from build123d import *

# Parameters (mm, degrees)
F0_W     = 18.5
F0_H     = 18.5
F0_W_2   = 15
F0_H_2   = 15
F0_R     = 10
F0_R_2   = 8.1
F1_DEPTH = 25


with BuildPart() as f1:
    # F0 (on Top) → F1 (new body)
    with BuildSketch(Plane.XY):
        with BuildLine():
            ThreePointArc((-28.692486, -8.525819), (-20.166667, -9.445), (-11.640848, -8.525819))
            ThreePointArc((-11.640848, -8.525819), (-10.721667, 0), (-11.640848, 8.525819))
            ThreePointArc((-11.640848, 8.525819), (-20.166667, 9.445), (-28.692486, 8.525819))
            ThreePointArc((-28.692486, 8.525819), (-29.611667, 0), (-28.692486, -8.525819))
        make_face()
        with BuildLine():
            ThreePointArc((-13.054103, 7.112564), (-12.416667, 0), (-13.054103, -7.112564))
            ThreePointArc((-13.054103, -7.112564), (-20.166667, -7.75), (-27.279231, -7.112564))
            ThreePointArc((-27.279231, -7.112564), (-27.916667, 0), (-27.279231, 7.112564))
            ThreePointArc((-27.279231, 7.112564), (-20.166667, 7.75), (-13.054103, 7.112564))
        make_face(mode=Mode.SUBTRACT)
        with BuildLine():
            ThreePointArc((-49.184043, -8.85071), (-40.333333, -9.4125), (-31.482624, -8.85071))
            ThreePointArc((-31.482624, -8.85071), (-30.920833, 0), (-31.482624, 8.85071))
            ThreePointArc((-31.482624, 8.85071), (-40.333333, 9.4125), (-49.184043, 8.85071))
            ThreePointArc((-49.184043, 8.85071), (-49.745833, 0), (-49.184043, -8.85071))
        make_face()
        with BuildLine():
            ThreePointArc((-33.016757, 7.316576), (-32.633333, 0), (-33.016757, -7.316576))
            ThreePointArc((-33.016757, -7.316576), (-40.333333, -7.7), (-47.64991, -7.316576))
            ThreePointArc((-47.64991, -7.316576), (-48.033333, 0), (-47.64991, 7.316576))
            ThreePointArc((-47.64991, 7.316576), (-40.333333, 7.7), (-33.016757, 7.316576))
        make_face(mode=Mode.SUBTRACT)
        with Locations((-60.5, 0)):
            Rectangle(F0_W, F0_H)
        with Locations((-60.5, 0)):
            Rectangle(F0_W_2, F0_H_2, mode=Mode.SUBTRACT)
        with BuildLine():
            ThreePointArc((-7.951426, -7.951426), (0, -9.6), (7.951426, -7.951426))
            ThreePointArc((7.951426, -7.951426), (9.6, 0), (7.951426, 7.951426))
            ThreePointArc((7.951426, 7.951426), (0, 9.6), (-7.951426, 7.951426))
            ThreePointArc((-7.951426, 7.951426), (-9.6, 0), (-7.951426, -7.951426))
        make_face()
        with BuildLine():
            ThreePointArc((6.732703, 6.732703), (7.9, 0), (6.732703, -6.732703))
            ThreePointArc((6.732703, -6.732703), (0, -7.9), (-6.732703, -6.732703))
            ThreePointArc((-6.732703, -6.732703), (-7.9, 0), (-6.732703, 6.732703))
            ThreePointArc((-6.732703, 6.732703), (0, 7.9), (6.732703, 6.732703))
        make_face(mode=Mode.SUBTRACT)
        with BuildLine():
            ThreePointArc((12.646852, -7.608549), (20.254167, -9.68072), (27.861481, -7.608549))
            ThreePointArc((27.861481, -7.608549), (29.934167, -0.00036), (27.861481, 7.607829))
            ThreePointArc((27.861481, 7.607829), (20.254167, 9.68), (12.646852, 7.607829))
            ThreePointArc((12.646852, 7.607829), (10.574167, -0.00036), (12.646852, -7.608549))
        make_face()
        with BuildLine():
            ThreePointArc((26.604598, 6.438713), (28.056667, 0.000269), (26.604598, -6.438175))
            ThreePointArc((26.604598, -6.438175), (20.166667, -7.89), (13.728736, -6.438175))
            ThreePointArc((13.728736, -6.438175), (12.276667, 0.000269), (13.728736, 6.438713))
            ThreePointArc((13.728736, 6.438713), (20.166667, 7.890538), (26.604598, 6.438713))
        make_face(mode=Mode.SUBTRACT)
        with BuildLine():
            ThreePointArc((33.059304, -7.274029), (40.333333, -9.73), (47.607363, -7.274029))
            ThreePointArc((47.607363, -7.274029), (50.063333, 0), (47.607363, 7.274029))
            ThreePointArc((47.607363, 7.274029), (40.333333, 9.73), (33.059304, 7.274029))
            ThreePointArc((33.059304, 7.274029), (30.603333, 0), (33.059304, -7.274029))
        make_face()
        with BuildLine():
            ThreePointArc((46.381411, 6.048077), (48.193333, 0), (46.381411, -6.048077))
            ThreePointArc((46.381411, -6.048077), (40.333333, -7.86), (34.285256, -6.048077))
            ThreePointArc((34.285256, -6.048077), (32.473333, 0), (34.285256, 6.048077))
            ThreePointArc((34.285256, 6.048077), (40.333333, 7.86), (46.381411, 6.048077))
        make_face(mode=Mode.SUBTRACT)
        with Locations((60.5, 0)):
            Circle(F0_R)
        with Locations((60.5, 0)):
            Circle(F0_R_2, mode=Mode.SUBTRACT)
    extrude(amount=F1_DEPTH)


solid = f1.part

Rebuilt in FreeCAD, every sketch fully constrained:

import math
import FreeCAD as App
import Part
import Sketcher
from FreeCAD import Vector

doc = App.newDocument("Part")
body = doc.addObject("PartDesign::Body", "Body")
body.AllowCompound = True

# Sketch on XY plane
sketch1 = body.newObject("Sketcher::SketchObject", "Sketch")
sketch1.AttachmentSupport = (doc.getObject("XY_Plane"), [""])
sketch1.MapMode = "FlatFace"
sketch1.addGeometry(Part.ArcOfCircle(Part.Circle(Vector(-20.166667, 30.555002, 0), Vector(0, 0, 1), 40.000002), math.radians(-102.306749), math.radians(-77.693251)), False)
sketch1.addGeometry(Part.ArcOfCircle(Part.Circle(Vector(-50.721669, 0, 0), Vector(0, 0, 1), 40.000002), math.radians(-12.306749), math.radians(12.306749)), False)
sketch1.addGeometry(Part.ArcOfCircle(Part.Circle(Vector(-20.166667, -30.555002, 0), Vector(0, 0, 1), 40.000002), math.radians(77.693251), math.radians(102.306749)), False)
sketch1.addGeometry(Part.ArcOfCircle(Part.Circle(Vector(10.388335, 0, 0), Vector(0, 0, 1), 40.000002), math.radians(167.693251), math.radians(192.306749)), False)
sketch1.addGeometry(Part.ArcOfCircle(Part.Circle(Vector(-20.166667, -32.250009, 0), Vector(0, 0, 1), 40.000009), math.radians(79.757539), math.radians(100.242461)), False)
sketch1.addGeometry(Part.ArcOfCircle(Part.Circle(Vector(-52.416676, 0, 0), Vector(0, 0, 1), 40.000009), math.radians(-10.242461), math.radians(10.242461)), False)
sketch1.addGeometry(Part.ArcOfCircle(Part.Circle(Vector(-20.166667, 32.250009, 0), Vector(0, 0, 1), 40.000009), math.radians(-100.242461), math.radians(-79.757539)), False)
sketch1.addGeometry(Part.ArcOfCircle(Part.Circle(Vector(12.083342, 0, 0), Vector(0, 0, 1), 40.000009), math.radians(169.757539), math.radians(190.242461)), False)
sketch1.addGeometry(Part.ArcOfCircle(Part.Circle(Vector(-40.333334, 60.587559, 0), Vector(0, 0, 1), 70.000059), math.radians(-97.263841), math.radians(-82.736159)), False)
sketch1.addGeometry(Part.ArcOfCircle(Part.Circle(Vector(-100.920777, 0, 0), Vector(0, 0, 1), 69.999944), math.radians(-7.263853), math.radians(7.263853)), False)
sketch1.addGeometry(Part.ArcOfCircle(Part.Circle(Vector(-40.333334, -60.587559, 0), Vector(0, 0, 1), 70.000059), math.radians(82.736159), math.radians(97.263841)), False)
sketch1.addGeometry(Part.ArcOfCircle(Part.Circle(Vector(20.254234, 0, 0), Vector(0, 0, 1), 70.000067), math.radians(172.73616), math.radians(187.26384)), False)
sketch1.addGeometry(Part.ArcOfCircle(Part.Circle(Vector(-40.333334, -62.299929, 0), Vector(0, 0, 1), 69.999929), math.radians(84.000336), math.radians(95.999664)), False)
sketch1.addGeometry(Part.ArcOfCircle(Part.Circle(Vector(-102.633253, 0, 0), Vector(0, 0, 1), 69.99992), math.radians(-5.999664), math.radians(5.999664)), False)
sketch1.addGeometry(Part.ArcOfCircle(Part.Circle(Vector(-40.333334, 62.299929, 0), Vector(0, 0, 1), 69.999929), math.radians(-95.999664), math.radians(-84.000336)), False)
sketch1.addGeometry(Part.ArcOfCircle(Part.Circle(Vector(21.966768, 0, 0), Vector(0, 0, 1), 70.000101), math.radians(174.000351), math.radians(185.999649)), False)
sketch1.addGeometry(Part.LineSegment(Vector(-69.75, 9.25, 0), Vector(-69.75, -9.25, 0)), False)
sketch1.addGeometry(Part.LineSegment(Vector(-69.75, -9.25, 0), Vector(-51.25, -9.25, 0)), False)
sketch1.addGeometry(Part.LineSegment(Vector(-51.25, -9.25, 0), Vector(-51.25, 9.25, 0)), False)
sketch1.addGeometry(Part.LineSegment(Vector(-51.25, 9.25, 0), Vector(-69.75, 9.25, 0)), False)
sketch1.addGeometry(Part.LineSegment(Vector(-53, -7.5, 0), Vector(-68, -7.5, 0)), False)
sketch1.addGeometry(Part.LineSegment(Vector(-68, -7.5, 0), Vector(-68, 7.5, 0)), False)
sketch1.addGeometry(Part.LineSegment(Vector(-68, 7.5, 0), Vector(-53, 7.5, 0)), False)
sketch1.addGeometry(Part.LineSegment(Vector(-53, 7.5, 0), Vector(-53, -7.5, 0)), False)
sketch1.addGeometry(Part.ArcOfCircle(Part.Circle(Vector(0, 10.400004, 0), Vector(0, 0, 1), 20.000004), math.radians(-113.426432), math.radians(-66.573568)), False)
sketch1.addGeometry(Part.ArcOfCircle(Part.Circle(Vector(-10.400004, 0, 0), Vector(0, 0, 1), 20.000004), math.radians(-23.426432), math.radians(23.426432)), False)
sketch1.addGeometry(Part.ArcOfCircle(Part.Circle(Vector(0, -10.400004, 0), Vector(0, 0, 1), 20.000004), math.radians(66.573568), math.radians(113.426432)), False)
sketch1.addGeometry(Part.ArcOfCircle(Part.Circle(Vector(10.400004, 0, 0), Vector(0, 0, 1), 20.000004), math.radians(156.573568), math.radians(203.426432)), False)
sketch1.addGeometry(Part.ArcOfCircle(Part.Circle(Vector(0, -12.099997, 0), Vector(0, 0, 1), 19.999997), math.radians(70.327995), math.radians(109.672005)), False)
sketch1.addGeometry(Part.ArcOfCircle(Part.Circle(Vector(-12.099997, 0, 0), Vector(0, 0, 1), 19.999997), math.radians(-19.672005), math.radians(19.672005)), False)
sketch1.addGeometry(Part.ArcOfCircle(Part.Circle(Vector(0, 12.099997, 0), Vector(0, 0, 1), 19.999997), math.radians(-109.672005), math.radians(-70.327995)), False)
sketch1.addGeometry(Part.ArcOfCircle(Part.Circle(Vector(12.099997, 0, 0), Vector(0, 0, 1), 19.999997), math.radians(160.327995), math.radians(199.672005)), False)
sketch1.addGeometry(Part.ArcOfCircle(Part.Circle(Vector(20.254167, 5.319279, 0), Vector(0, 0, 1), 14.999999), math.radians(-120.474466), math.radians(-59.525534)), False)
sketch1.addGeometry(Part.ArcOfCircle(Part.Circle(Vector(14.93417, -0.00036, 0), Vector(0, 0, 1), 14.999997), math.radians(-30.478347), math.radians(30.478347)), False)
sketch1.addGeometry(Part.ArcOfCircle(Part.Circle(Vector(20.254167, -5.319999, 0), Vector(0, 0, 1), 14.999999), math.radians(59.525534), math.radians(120.474466)), False)
sketch1.addGeometry(Part.ArcOfCircle(Part.Circle(Vector(25.57417, -0.00036, 0), Vector(0, 0, 1), 15.000003), math.radians(149.521667), math.radians(210.478333)), False)
sketch1.addGeometry(Part.ArcOfCircle(Part.Circle(Vector(20.166667, -7.109462, 0), Vector(0, 0, 1), 15), math.radians(64.583492), math.radians(115.416508)), False)
sketch1.addGeometry(Part.ArcOfCircle(Part.Circle(Vector(13.056669, 0.000269, 0), Vector(0, 0, 1), 14.999998), math.radians(-25.418681), math.radians(25.418681)), False)
sketch1.addGeometry(Part.ArcOfCircle(Part.Circle(Vector(20.166667, 7.11, 0), Vector(0, 0, 1), 15), math.radians(-115.416508), math.radians(-64.583492)), False)
sketch1.addGeometry(Part.ArcOfCircle(Part.Circle(Vector(27.276665, 0.000269, 0), Vector(0, 0, 1), 14.999998), math.radians(154.581319), math.radians(205.418681)), False)
sketch1.addGeometry(Part.ArcOfCircle(Part.Circle(Vector(40.333334, 2.269999, 0), Vector(0, 0, 1), 11.999999), math.radians(-127.313022), math.radians(-52.686978)), False)
sketch1.addGeometry(Part.ArcOfCircle(Part.Circle(Vector(38.063332, 0, 0), Vector(0, 0, 1), 12.000001), math.radians(-37.31301), math.radians(37.31301)), False)
sketch1.addGeometry(Part.ArcOfCircle(Part.Circle(Vector(40.333334, -2.269999, 0), Vector(0, 0, 1), 11.999999), math.radians(52.686978), math.radians(127.313022)), False)
sketch1.addGeometry(Part.ArcOfCircle(Part.Circle(Vector(42.60333, 0, 0), Vector(0, 0, 1), 11.999997), math.radians(142.686975), math.radians(217.313025)), False)
sketch1.addGeometry(Part.ArcOfCircle(Part.Circle(Vector(40.333334, -3.14, 0), Vector(0, 0, 1), 11), math.radians(56.644977), math.radians(123.355023)), False)
sketch1.addGeometry(Part.ArcOfCircle(Part.Circle(Vector(37.193329, 0, 0), Vector(0, 0, 1), 11.000004), math.radians(-33.355008), math.radians(33.355008)), False)
sketch1.addGeometry(Part.ArcOfCircle(Part.Circle(Vector(40.333334, 3.14, 0), Vector(0, 0, 1), 11), math.radians(-123.355023), math.radians(-56.644977)), False)
sketch1.addGeometry(Part.ArcOfCircle(Part.Circle(Vector(43.473331, 0, 0), Vector(0, 0, 1), 10.999998), math.radians(146.644974), math.radians(213.355026)), False)
sketch1.addGeometry(Part.Circle(Vector(60.5, 0, 0), Vector(0, 0, 1), 10), False)
sketch1.addGeometry(Part.Circle(Vector(60.5, 0, 0), Vector(0, 0, 1), 8.1), False)
sketch1.addConstraint(Sketcher.Constraint("Coincident", 0, 2, 1, 1))
sketch1.addConstraint(Sketcher.Constraint("Coincident", 1, 2, 2, 1))
sketch1.addConstraint(Sketcher.Constraint("Coincident", 2, 2, 3, 1))
sketch1.addConstraint(Sketcher.Constraint("Coincident", 3, 2, 0, 1))
sketch1.addConstraint(Sketcher.Constraint("Coincident", 4, 1, 5, 2))
sketch1.addConstraint(Sketcher.Constraint("Coincident", 5, 1, 6, 2))
sketch1.addConstraint(Sketcher.Constraint("Coincident", 6, 1, 7, 2))
sketch1.addConstraint(Sketcher.Constraint("Coincident", 7, 1, 4, 2))
sketch1.addConstraint(Sketcher.Constraint("Coincident", 8, 2, 9, 1))
sketch1.addConstraint(Sketcher.Constraint("Coincident", 9, 2, 10, 1))
sketch1.addConstraint(Sketcher.Constraint("Coincident", 10, 2, 11, 1))
sketch1.addConstraint(Sketcher.Constraint("Coincident", 11, 2, 8, 1))
sketch1.addConstraint(Sketcher.Constraint("Coincident", 12, 1, 13, 2))
sketch1.addConstraint(Sketcher.Constraint("Coincident", 13, 1, 14, 2))
sketch1.addConstraint(Sketcher.Constraint("Coincident", 14, 1, 15, 2))
sketch1.addConstraint(Sketcher.Constraint("Coincident", 15, 1, 12, 2))
sketch1.addConstraint(Sketcher.Constraint("Coincident", 16, 2, 17, 1))
sketch1.addConstraint(Sketcher.Constraint("Coincident", 17, 2, 18, 1))
sketch1.addConstraint(Sketcher.Constraint("Coincident", 18, 2, 19, 1))
sketch1.addConstraint(Sketcher.Constraint("Coincident", 19, 2, 16, 1))
sketch1.addConstraint(Sketcher.Constraint("Coincident", 20, 2, 21, 1))
sketch1.addConstraint(Sketcher.Constraint("Coincident", 21, 2, 22, 1))
sketch1.addConstraint(Sketcher.Constraint("Coincident", 22, 2, 23, 1))
sketch1.addConstraint(Sketcher.Constraint("Coincident", 23, 2, 20, 1))
sketch1.addConstraint(Sketcher.Constraint("Coincident", 24, 2, 25, 1))
sketch1.addConstraint(Sketcher.Constraint("Coincident", 25, 2, 26, 1))
sketch1.addConstraint(Sketcher.Constraint("Coincident", 26, 2, 27, 1))
sketch1.addConstraint(Sketcher.Constraint("Coincident", 27, 2, 24, 1))
sketch1.addConstraint(Sketcher.Constraint("Coincident", 28, 1, 29, 2))
sketch1.addConstraint(Sketcher.Constraint("Coincident", 29, 1, 30, 2))
sketch1.addConstraint(Sketcher.Constraint("Coincident", 30, 1, 31, 2))
sketch1.addConstraint(Sketcher.Constraint("Coincident", 31, 1, 28, 2))
sketch1.addConstraint(Sketcher.Constraint("Coincident", 32, 2, 33, 1))
sketch1.addConstraint(Sketcher.Constraint("Coincident", 33, 2, 34, 1))
sketch1.addConstraint(Sketcher.Constraint("Coincident", 34, 2, 35, 1))
sketch1.addConstraint(Sketcher.Constraint("Coincident", 35, 2, 32, 1))
sketch1.addConstraint(Sketcher.Constraint("Coincident", 36, 1, 37, 2))
sketch1.addConstraint(Sketcher.Constraint("Coincident", 37, 1, 38, 2))
sketch1.addConstraint(Sketcher.Constraint("Coincident", 38, 1, 39, 2))
sketch1.addConstraint(Sketcher.Constraint("Coincident", 39, 1, 36, 2))
sketch1.addConstraint(Sketcher.Constraint("Coincident", 40, 2, 41, 1))
sketch1.addConstraint(Sketcher.Constraint("Coincident", 41, 2, 42, 1))
sketch1.addConstraint(Sketcher.Constraint("Coincident", 42, 2, 43, 1))
sketch1.addConstraint(Sketcher.Constraint("Coincident", 43, 2, 40, 1))
sketch1.addConstraint(Sketcher.Constraint("Coincident", 44, 1, 45, 2))
sketch1.addConstraint(Sketcher.Constraint("Coincident", 45, 1, 46, 2))
sketch1.addConstraint(Sketcher.Constraint("Coincident", 46, 1, 47, 2))
sketch1.addConstraint(Sketcher.Constraint("Coincident", 47, 1, 44, 2))
sketch1.addConstraint(Sketcher.Constraint("Vertical", 16))
sketch1.addConstraint(Sketcher.Constraint("Horizontal", 17))
sketch1.addConstraint(Sketcher.Constraint("Vertical", 18))
sketch1.addConstraint(Sketcher.Constraint("Horizontal", 19))
sketch1.addConstraint(Sketcher.Constraint("Horizontal", 20))
sketch1.addConstraint(Sketcher.Constraint("Vertical", 21))
sketch1.addConstraint(Sketcher.Constraint("Horizontal", 22))
sketch1.addConstraint(Sketcher.Constraint("Vertical", 23))
sketch1.addConstraint(Sketcher.Constraint("Coincident", 49, 3, 48, 3))
sketch1.addConstraint(Sketcher.Constraint("Equal", 0, 1))
sketch1.addConstraint(Sketcher.Constraint("Equal", 1, 2))
sketch1.addConstraint(Sketcher.Constraint("Equal", 2, 3))
sketch1.addConstraint(Sketcher.Constraint("Equal", 4, 5))
sketch1.addConstraint(Sketcher.Constraint("Equal", 5, 6))
sketch1.addConstraint(Sketcher.Constraint("Equal", 6, 7))
sketch1.addConstraint(Sketcher.Constraint("Equal", 8, 10))
sketch1.addConstraint(Sketcher.Constraint("Equal", 12, 14))
sketch1.addConstraint(Sketcher.Constraint("Equal", 24, 25))
sketch1.addConstraint(Sketcher.Constraint("Equal", 25, 26))
sketch1.addConstraint(Sketcher.Constraint("Equal", 26, 27))
sketch1.addConstraint(Sketcher.Constraint("Equal", 28, 29))
sketch1.addConstraint(Sketcher.Constraint("Equal", 29, 30))
sketch1.addConstraint(Sketcher.Constraint("Equal", 30, 31))
sketch1.addConstraint(Sketcher.Constraint("Equal", 32, 34))
sketch1.addConstraint(Sketcher.Constraint("Equal", 34, 36))
sketch1.addConstraint(Sketcher.Constraint("Equal", 34, 37))
sketch1.addConstraint(Sketcher.Constraint("Equal", 36, 38))
sketch1.addConstraint(Sketcher.Constraint("Equal", 37, 39))
sketch1.addConstraint(Sketcher.Constraint("Equal", 40, 42))
sketch1.addConstraint(Sketcher.Constraint("Equal", 42, 43))
sketch1.addConstraint(Sketcher.Constraint("Equal", 44, 46))
sketch1.addConstraint(Sketcher.Constraint("Equal", 46, 47))
sketch1.addConstraint(Sketcher.Constraint("Symmetric", 24, 3, 26, 3, -1, 1))
sketch1.addConstraint(Sketcher.Constraint("Symmetric", 25, 3, 27, 3, -1, 1))
sketch1.addConstraint(Sketcher.Constraint("Symmetric", 28, 3, 30, 3, -1, 1))
sketch1.addConstraint(Sketcher.Constraint("Symmetric", 29, 3, 31, 3, -1, 1))
sketch1.addConstraint(Sketcher.Constraint("Symmetric", 25, 2, 26, 2, -2))
sketch1.addConstraint(Sketcher.Constraint("Symmetric", 29, 1, 30, 1, -2))
sketch1.addConstraint(Sketcher.Constraint("Symmetric", 0, 3, 2, 3, -1))
sketch1.addConstraint(Sketcher.Constraint("Symmetric", 4, 3, 6, 3, -1))
sketch1.addConstraint(Sketcher.Constraint("Symmetric", 8, 3, 10, 3, -1))
sketch1.addConstraint(Sketcher.Constraint("Symmetric", 12, 3, 14, 3, -1))
sketch1.addConstraint(Sketcher.Constraint("Symmetric", 40, 3, 42, 3, -1))
sketch1.addConstraint(Sketcher.Constraint("Symmetric", 44, 3, 46, 3, -1))
sketch1.addConstraint(Sketcher.Constraint("PointOnObject", 1, 3, -1))
sketch1.addConstraint(Sketcher.Constraint("PointOnObject", 3, 3, -1))
sketch1.addConstraint(Sketcher.Constraint("PointOnObject", 5, 3, -1))
sketch1.addConstraint(Sketcher.Constraint("PointOnObject", 7, 3, -1))
sketch1.addConstraint(Sketcher.Constraint("PointOnObject", 9, 3, -1))
sketch1.addConstraint(Sketcher.Constraint("PointOnObject", 11, 3, -1))
sketch1.addConstraint(Sketcher.Constraint("PointOnObject", 13, 3, -1))
sketch1.addConstraint(Sketcher.Constraint("PointOnObject", 15, 3, -1))
sketch1.addConstraint(Sketcher.Constraint("PointOnObject", 41, 3, -1))
sketch1.addConstraint(Sketcher.Constraint("PointOnObject", 43, 3, -1))
sketch1.addConstraint(Sketcher.Constraint("PointOnObject", 45, 3, -1))
sketch1.addConstraint(Sketcher.Constraint("PointOnObject", 47, 3, -1))
sketch1.addConstraint(Sketcher.Constraint("PointOnObject", 48, 3, -1))
sketch1.addConstraint(Sketcher.Constraint("Horizontal", 33, 3, 35, 3))
sketch1.addConstraint(Sketcher.Constraint("Horizontal", 37, 3, 39, 3))
sketch1.addConstraint(Sketcher.Constraint("Horizontal", 1, 2, 2, 2))
sketch1.addConstraint(Sketcher.Constraint("Horizontal", 5, 1, 6, 1))
sketch1.addConstraint(Sketcher.Constraint("Horizontal", 9, 2, 10, 2))
sketch1.addConstraint(Sketcher.Constraint("Horizontal", 13, 1, 14, 1))
sketch1.addConstraint(Sketcher.Constraint("Horizontal", 33, 2, 34, 2))
sketch1.addConstraint(Sketcher.Constraint("Horizontal", 32, 2, 35, 2))
sketch1.addConstraint(Sketcher.Constraint("Horizontal", 37, 1, 38, 1))
sketch1.addConstraint(Sketcher.Constraint("Horizontal", 36, 1, 39, 1))
sketch1.addConstraint(Sketcher.Constraint("Horizontal", 41, 2, 42, 2))
sketch1.addConstraint(Sketcher.Constraint("Horizontal", 45, 1, 46, 1))
sketch1.addConstraint(Sketcher.Constraint("Vertical", 2, 3, 4, 3))
sketch1.addConstraint(Sketcher.Constraint("Vertical", 10, 3, 12, 3))
sketch1.addConstraint(Sketcher.Constraint("Vertical", 42, 3, 44, 3))
sketch1.addConstraint(Sketcher.Constraint("Vertical", 32, 2, 33, 2))
sketch1.addConstraint(Sketcher.Constraint("Vertical", 36, 1, 37, 1))
sketch1.addConstraint(Sketcher.Constraint("Equal", 19, 16))
sketch1.addConstraint(Sketcher.Constraint("Equal", 22, 21))
sketch1.addConstraint(Sketcher.Constraint("Diameter", 48, 20.0))
sketch1.addConstraint(Sketcher.Constraint("Radius", 0, 40.000002))
sketch1.addConstraint(Sketcher.Constraint("Radius", 32, 14.999999))
sketch1.addConstraint(Sketcher.Constraint("Radius", 40, 11.999999))
sketch1.addConstraint(Sketcher.Constraint("Radius", 41, 12.000001))
sketch1.addConstraint(Sketcher.Constraint("Radius", 44, 11.0))
sketch1.addConstraint(Sketcher.Constraint("Diameter", 49, 16.2))
sketch1.addConstraint(Sketcher.Constraint("DistanceX", 20, 2, 20, 1, 15.0))
sketch1.addConstraint(Sketcher.Constraint("DistanceX", 17, 1, 17, 2, 18.5))
sketch1.addConstraint(Sketcher.Constraint("DistanceX", 20, 2, -1, 1, 68.0))
sketch1.addConstraint(Sketcher.Constraint("DistanceX", -1, 1, 48, 3, 60.5))
sketch1.addConstraint(Sketcher.Constraint("DistanceY", 20, 2, -1, 1, 7.5))
sketch1.addConstraint(Sketcher.Constraint("Radius", 15, 70.000101))
sketch1.addConstraint(Sketcher.Constraint("DistanceY", 34, 3, -1, 1, 5.319999))
sketch1.addConstraint(Sketcher.Constraint("DistanceY", -1, 1, 38, 3, 7.11))
sketch1.addConstraint(Sketcher.Constraint("DistanceY", -1, 1, 40, 3, 2.269999))
sketch1.addConstraint(Sketcher.Constraint("DistanceY", 44, 3, -1, 1, 3.14))
sketch1.addConstraint(Sketcher.Constraint("DistanceX", 16, 2, -1, 1, 69.75))
sketch1.addConstraint(Sketcher.Constraint("DistanceY", 16, 2, -1, 1, 9.25))
sketch1.addConstraint(Sketcher.Constraint("Radius", 4, 40.000009))
sketch1.addConstraint(Sketcher.Constraint("Radius", 8, 70.000059))
sketch1.addConstraint(Sketcher.Constraint("Radius", 12, 69.999929))
sketch1.addConstraint(Sketcher.Constraint("Radius", 13, 69.99992))
sketch1.addConstraint(Sketcher.Constraint("DistanceY", -1, 1, 0, 3, 30.555002))
sketch1.addConstraint(Sketcher.Constraint("Radius", 9, 69.999944))
sketch1.addConstraint(Sketcher.Constraint("Radius", 11, 70.000067))
sketch1.addConstraint(Sketcher.Constraint("Radius", 24, 20.000004))
sketch1.addConstraint(Sketcher.Constraint("Radius", 28, 19.999997))
sketch1.addConstraint(Sketcher.Constraint("Radius", 33, 14.999997))
sketch1.addConstraint(Sketcher.Constraint("Radius", 35, 15.000003))
sketch1.addConstraint(Sketcher.Constraint("Radius", 45, 11.000004))
sketch1.addConstraint(Sketcher.Constraint("DistanceX", 1, 3, -1, 1, 50.721669))
sketch1.addConstraint(Sketcher.Constraint("DistanceY", 4, 3, -1, 1, 32.250009))
sketch1.addConstraint(Sketcher.Constraint("DistanceX", -1, 1, 7, 3, 12.083342))
sketch1.addConstraint(Sketcher.Constraint("DistanceY", -1, 1, 8, 3, 60.587559))
sketch1.addConstraint(Sketcher.Constraint("DistanceY", 12, 3, -1, 1, 62.299929))
sketch1.addConstraint(Sketcher.Constraint("DistanceX", -1, 1, 15, 3, 21.966768))
sketch1.addConstraint(Sketcher.Constraint("DistanceY", -1, 1, 32, 3, 5.319279))
sketch1.addConstraint(Sketcher.Constraint("DistanceX", -1, 1, 33, 3, 14.93417))
sketch1.addConstraint(Sketcher.Constraint("DistanceX", -1, 1, 35, 3, 25.57417))
sketch1.addConstraint(Sketcher.Constraint("DistanceX", -1, 1, 37, 3, 13.056669))
sketch1.addConstraint(Sketcher.Constraint("DistanceY", -1, 1, 37, 3, 0.000269))
sketch1.addConstraint(Sketcher.Constraint("DistanceX", -1, 1, 41, 3, 38.063332))
sketch1.addConstraint(Sketcher.Constraint("DistanceX", -1, 1, 43, 3, 42.60333))
sketch1.addConstraint(Sketcher.Constraint("DistanceX", -1, 1, 45, 3, 37.193329))
sketch1.addConstraint(Sketcher.Constraint("DistanceY", 0, 2, -1, 1, 8.525819))
sketch1.addConstraint(Sketcher.Constraint("DistanceY", 8, 2, -1, 1, 8.85071))
sketch1.addConstraint(Sketcher.Constraint("DistanceX", 8, 3, -1, 1, 40.333334))
sketch1.addConstraint(Sketcher.Constraint("DistanceY", -1, 1, 24, 3, 10.400004))
sketch1.addConstraint(Sketcher.Constraint("DistanceX", 25, 3, -1, 1, 10.400004))
sketch1.addConstraint(Sketcher.Constraint("DistanceY", 28, 3, -1, 1, 12.099997))
sketch1.addConstraint(Sketcher.Constraint("DistanceX", 29, 3, -1, 1, 12.099997))
sketch1.addConstraint(Sketcher.Constraint("DistanceX", -1, 1, 36, 3, 20.166667))
pad1 = body.newObject("PartDesign::Pad", "Pad")
pad1.Profile = sketch1
pad1.Length = 25

doc.recompute()
